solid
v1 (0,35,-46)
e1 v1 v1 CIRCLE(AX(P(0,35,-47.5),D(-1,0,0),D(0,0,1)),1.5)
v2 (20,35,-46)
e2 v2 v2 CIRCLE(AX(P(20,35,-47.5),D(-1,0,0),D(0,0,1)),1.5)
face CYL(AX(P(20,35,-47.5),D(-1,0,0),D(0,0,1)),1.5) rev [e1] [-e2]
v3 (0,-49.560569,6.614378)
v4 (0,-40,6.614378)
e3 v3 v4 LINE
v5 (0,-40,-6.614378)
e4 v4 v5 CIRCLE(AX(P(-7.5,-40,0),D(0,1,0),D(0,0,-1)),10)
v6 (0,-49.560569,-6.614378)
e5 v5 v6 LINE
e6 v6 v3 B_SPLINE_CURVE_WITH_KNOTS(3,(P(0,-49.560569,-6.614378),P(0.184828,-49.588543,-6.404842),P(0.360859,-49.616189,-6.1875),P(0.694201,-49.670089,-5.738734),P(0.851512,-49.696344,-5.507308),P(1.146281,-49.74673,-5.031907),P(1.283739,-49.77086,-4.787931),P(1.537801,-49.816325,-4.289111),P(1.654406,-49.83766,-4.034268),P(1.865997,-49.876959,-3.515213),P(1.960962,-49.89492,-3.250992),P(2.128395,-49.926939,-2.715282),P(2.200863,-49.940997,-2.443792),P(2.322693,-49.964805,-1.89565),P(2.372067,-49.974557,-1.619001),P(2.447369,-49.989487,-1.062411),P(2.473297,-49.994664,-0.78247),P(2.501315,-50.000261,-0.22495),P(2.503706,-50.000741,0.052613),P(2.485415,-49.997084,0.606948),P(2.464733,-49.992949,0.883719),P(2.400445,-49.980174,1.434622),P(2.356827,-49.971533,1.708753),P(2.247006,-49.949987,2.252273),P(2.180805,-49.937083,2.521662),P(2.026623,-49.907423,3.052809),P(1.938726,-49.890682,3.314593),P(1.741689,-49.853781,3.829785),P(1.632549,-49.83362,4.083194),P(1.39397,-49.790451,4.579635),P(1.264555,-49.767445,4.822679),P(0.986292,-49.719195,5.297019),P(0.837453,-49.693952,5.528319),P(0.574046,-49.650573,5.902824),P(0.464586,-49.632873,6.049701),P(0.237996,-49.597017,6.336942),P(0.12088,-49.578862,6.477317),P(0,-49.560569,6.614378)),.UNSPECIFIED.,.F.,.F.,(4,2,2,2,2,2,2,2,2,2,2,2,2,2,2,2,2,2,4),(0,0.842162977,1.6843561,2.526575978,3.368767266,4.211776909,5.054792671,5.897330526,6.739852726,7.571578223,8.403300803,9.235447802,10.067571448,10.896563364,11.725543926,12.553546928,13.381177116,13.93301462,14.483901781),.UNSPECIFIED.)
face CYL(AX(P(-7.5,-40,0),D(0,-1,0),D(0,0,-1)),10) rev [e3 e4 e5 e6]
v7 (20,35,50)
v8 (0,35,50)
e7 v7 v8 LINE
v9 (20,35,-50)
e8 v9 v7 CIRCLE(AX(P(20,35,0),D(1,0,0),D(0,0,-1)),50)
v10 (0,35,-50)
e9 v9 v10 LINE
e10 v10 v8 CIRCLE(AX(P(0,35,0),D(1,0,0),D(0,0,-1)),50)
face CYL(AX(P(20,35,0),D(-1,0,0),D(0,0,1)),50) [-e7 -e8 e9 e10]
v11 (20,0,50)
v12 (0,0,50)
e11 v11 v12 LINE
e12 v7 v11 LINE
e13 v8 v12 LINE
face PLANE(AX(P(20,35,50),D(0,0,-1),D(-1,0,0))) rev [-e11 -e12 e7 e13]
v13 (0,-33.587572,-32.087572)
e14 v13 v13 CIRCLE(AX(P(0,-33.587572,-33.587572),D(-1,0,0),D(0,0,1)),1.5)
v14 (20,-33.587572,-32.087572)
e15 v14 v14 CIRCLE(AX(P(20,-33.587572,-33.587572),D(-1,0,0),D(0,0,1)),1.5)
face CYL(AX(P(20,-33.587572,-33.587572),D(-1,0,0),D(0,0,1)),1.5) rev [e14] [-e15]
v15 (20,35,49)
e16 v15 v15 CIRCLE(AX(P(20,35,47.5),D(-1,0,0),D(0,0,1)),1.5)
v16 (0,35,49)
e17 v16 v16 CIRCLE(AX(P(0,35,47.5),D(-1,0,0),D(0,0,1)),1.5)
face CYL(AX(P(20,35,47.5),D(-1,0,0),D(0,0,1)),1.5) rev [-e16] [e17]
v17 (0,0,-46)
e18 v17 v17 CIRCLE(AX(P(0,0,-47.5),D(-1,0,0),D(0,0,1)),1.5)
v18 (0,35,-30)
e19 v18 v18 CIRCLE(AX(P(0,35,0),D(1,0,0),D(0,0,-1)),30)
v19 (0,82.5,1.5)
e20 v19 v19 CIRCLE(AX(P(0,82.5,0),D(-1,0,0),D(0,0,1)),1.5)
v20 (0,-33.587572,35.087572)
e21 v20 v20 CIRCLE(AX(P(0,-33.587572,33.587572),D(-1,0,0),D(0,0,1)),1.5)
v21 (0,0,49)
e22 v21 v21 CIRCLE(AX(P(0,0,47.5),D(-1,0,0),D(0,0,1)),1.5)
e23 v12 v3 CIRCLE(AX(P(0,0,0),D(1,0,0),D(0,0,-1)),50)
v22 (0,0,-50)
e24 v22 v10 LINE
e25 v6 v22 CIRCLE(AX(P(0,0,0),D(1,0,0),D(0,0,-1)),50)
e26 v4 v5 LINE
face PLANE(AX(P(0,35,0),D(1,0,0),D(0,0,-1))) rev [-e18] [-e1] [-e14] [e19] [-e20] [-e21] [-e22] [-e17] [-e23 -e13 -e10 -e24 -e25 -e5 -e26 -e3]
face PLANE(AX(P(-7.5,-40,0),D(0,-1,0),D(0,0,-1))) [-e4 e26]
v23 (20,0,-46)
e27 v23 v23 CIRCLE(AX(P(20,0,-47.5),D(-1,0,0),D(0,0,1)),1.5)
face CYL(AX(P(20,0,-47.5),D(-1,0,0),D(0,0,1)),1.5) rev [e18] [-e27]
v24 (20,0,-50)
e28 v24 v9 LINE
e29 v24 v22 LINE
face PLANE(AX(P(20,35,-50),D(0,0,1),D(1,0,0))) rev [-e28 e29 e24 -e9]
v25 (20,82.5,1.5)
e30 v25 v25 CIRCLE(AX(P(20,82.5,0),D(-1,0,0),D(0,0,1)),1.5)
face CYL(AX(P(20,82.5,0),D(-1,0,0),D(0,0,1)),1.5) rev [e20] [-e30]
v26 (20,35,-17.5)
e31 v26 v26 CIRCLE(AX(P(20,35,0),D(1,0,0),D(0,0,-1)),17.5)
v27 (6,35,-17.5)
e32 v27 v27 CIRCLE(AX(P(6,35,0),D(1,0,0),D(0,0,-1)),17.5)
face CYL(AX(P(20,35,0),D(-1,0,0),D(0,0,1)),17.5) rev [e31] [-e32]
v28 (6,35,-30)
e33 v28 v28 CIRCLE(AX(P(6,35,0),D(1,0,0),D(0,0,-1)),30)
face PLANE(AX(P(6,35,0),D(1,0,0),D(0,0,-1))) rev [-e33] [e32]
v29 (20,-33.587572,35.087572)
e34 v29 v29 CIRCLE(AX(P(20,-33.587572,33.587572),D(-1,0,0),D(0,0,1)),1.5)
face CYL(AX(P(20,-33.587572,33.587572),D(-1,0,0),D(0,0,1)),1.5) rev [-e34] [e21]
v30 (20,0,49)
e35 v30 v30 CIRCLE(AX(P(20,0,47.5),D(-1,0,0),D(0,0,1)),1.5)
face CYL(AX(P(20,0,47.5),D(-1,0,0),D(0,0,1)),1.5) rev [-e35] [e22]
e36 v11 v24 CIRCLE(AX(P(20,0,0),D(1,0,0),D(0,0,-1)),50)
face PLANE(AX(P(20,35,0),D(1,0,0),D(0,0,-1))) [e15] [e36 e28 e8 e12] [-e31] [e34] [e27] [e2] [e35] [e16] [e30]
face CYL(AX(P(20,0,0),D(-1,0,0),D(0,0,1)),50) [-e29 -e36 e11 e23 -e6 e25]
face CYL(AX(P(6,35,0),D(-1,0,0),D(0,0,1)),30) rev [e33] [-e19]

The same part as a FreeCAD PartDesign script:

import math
import FreeCAD as App
import Part
import Sketcher

doc = App.newDocument("Part")
body = doc.addObject("PartDesign::Body", "Body")

# Sketch on YZ plane
sketch1 = doc.addObject("Sketcher::SketchObject", "Sketch")
body.addObject(sketch1)
sketch1.AttachmentSupport = (doc.YZ_Plane, [""])
sketch1.MapMode = "FlatFace"
sketch1.addGeometry([
    Part.LineSegment(App.Vector(35, 50, 0), App.Vector(0, 50, 0)),  # 0
    Part.ArcOfCircle(Part.Circle(App.Vector(0, 0, 0), App.Vector(0, 0, 1), 50), math.radians(90), math.radians(270)),  # 1
    Part.LineSegment(App.Vector(0, -50, 0), App.Vector(35, -50, 0)),  # 2
    Part.ArcOfCircle(Part.Circle(App.Vector(35, 0, 0), App.Vector(0, 0, 1), 50), math.radians(-90), math.radians(90)),  # 3
    Part.Circle(App.Vector(35, 0, 0), App.Vector(0, 0, 1), 18),  # 4
], False)
sketch1.addConstraint([
    Sketcher.Constraint("Tangent", 0, 2, 1, 1),
    Sketcher.Constraint("Tangent", 1, 2, 2, 1),
    Sketcher.Constraint("Tangent", 2, 2, 3, 1),
    Sketcher.Constraint("Tangent", 3, 2, 0, 1),
    Sketcher.Constraint("Horizontal", 0),
    Sketcher.Constraint("Horizontal", 2),
    Sketcher.Constraint("Coincident", 1, 3, -1, 1),
    Sketcher.Constraint("Coincident", 4, 3, 3, 3),
    Sketcher.Constraint("Diameter", 4, 35.0),
    Sketcher.Constraint("Radius", 1, 50.0),
    Sketcher.Constraint("DistanceX", 0, 2, 0, 1, 35.0),
])
pad1 = doc.addObject("PartDesign::Pad", "Pad")
body.addObject(pad1)
pad1.Profile = sketch1
pad1.Length = 20

# Sketch on YZ plane
sketch2 = doc.addObject("Sketcher::SketchObject", "Sketch001")
body.addObject(sketch2)
sketch2.AttachmentSupport = (doc.YZ_Plane, [""])
sketch2.MapMode = "FlatFace"
sketch2.addGeometry(Part.Circle(App.Vector(35, 0, 0), App.Vector(0, 0, 1), 30), False)
sketch2.addConstraint([
    Sketcher.Constraint("PointOnObject", 0, 3, -1),
    Sketcher.Constraint("Diameter", 0, 60.0),
    Sketcher.Constraint("DistanceX", -1, 1, 0, 3, 35.0),
])
pocket1 = doc.addObject("PartDesign::Pocket", "Pocket")
body.addObject(pocket1)
pocket1.Profile = sketch2
pocket1.Length = 6
pocket1.Reversed = True

# Sketch on XZ plane
sketch3 = doc.addObject("Sketcher::SketchObject", "Sketch002")
body.addObject(sketch3)
sketch3.AttachmentSupport = (doc.XZ_Plane, [""])
sketch3.MapMode = "FlatFace"
sketch3.AttachmentOffset = App.Placement(App.Vector(0, 0, 50), App.Rotation())
sketch3.addGeometry(Part.Circle(App.Vector(-8, 0, 0), App.Vector(0, 0, 1), 10), False)
sketch3.addConstraint([
    Sketcher.Constraint("PointOnObject", 0, 3, -1),
    Sketcher.Constraint("Diameter", 0, 20.0),
    Sketcher.Constraint("DistanceX", 0, 3, -1, 1, 7.5),
])
pocket2 = doc.addObject("PartDesign::Pocket", "Pocket001")
body.addObject(pocket2)
pocket2.Profile = sketch3
pocket2.Length = 10

# Sketch on YZ plane
sketch4 = doc.addObject("Sketcher::SketchObject", "Sketch003")
body.addObject(sketch4)
sketch4.AttachmentSupport = (doc.YZ_Plane, [""])
sketch4.MapMode = "FlatFace"
sketch4.addGeometry([
    Part.Circle(App.Vector(82.5, 0, 0), App.Vector(0, 0, 1), 1.5),  # 0
    Part.Circle(App.Vector(35, 47.5, 0), App.Vector(0, 0, 1), 1.5),  # 1
    Part.Circle(App.Vector(35, -47.5, 0), App.Vector(0, 0, 1), 1.5),  # 2
    Part.Circle(App.Vector(0, -47.5, 0), App.Vector(0, 0, 1), 1.5),  # 3
    Part.Circle(App.Vector(0, 47.5, 0), App.Vector(0, 0, 1), 1.5),  # 4
    Part.Circle(App.Vector(-33.6, 33.6, 0), App.Vector(0, 0, 1), 1.5),  # 5
    Part.Circle(App.Vector(-33.6, -33.6, 0), App.Vector(0, 0, 1), 1.5),  # 6
], False)
sketch4.addConstraint([
    Sketcher.Constraint("Equal", 0, 1),
    Sketcher.Constraint("Equal", 1, 2),
    Sketcher.Constraint("Equal", 2, 3),
    Sketcher.Constraint("Equal", 3, 4),
    Sketcher.Constraint("Equal", 4, 5),
    Sketcher.Constraint("Equal", 5, 6),
    Sketcher.Constraint("Symmetric", 3, 3, 4, 3, -1, 1),
    Sketcher.Constraint("Symmetric", 1, 3, 2, 3, -1),
    Sketcher.Constraint("Symmetric", 5, 3, 6, 3, -1),
    Sketcher.Constraint("PointOnObject", 0, 3, -1),
    Sketcher.Constraint("PointOnObject", 3, 3, -2),
    Sketcher.Constraint("Horizontal", 2, 3, 3, 3),
    Sketcher.Constraint("Diameter", 0, 3.0),
    Sketcher.Constraint("DistanceX", -1, 1, 1, 3, 35.0),
    Sketcher.Constraint("DistanceY", 2, 3, 1, 3, 95.0),
    Sketcher.Constraint("DistanceX", -1, 1, 0, 3, 82.5),
    Sketcher.Constraint("DistanceX", 5, 3, -1, 1, 33.587572),
    Sketcher.Constraint("DistanceY", -1, 1, 5, 3, 33.587572),
])
pocket3 = doc.addObject("PartDesign::Pocket", "Pocket002")
body.addObject(pocket3)
pocket3.Profile = sketch4
pocket3.Type = "ThroughAll"
pocket3.Reversed = True

doc.recompute()
